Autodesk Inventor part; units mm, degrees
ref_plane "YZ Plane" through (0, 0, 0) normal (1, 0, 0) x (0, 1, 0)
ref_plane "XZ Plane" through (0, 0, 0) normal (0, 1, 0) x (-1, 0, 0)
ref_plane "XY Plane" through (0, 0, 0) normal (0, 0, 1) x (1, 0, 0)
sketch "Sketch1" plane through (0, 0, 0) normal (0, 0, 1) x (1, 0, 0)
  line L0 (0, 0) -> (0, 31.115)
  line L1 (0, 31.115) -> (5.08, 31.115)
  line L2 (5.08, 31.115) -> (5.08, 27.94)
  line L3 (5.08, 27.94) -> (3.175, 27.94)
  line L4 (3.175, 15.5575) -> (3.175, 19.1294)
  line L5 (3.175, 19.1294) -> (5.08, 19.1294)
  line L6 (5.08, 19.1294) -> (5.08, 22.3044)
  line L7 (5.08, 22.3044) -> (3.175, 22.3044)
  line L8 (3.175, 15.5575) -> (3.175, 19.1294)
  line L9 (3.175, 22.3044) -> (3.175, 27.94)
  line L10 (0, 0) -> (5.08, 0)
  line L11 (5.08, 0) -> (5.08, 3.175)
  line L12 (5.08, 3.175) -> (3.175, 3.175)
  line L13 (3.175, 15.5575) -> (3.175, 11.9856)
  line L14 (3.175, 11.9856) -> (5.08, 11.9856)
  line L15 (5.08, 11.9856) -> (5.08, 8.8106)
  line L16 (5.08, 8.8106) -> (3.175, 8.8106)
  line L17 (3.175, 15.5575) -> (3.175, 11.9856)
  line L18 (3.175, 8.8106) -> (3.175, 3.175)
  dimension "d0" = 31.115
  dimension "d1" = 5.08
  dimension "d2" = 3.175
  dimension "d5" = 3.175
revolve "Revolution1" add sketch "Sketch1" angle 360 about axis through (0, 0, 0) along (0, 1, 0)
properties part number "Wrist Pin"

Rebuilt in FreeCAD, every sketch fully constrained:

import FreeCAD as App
import Part
import Sketcher

V = App.Vector
Q = App.Units.Quantity

doc = App.newDocument("Part")
body = doc.addObject("PartDesign::Body", "Body")

# Sketch on XY plane
sketch1 = body.newObject("Sketcher::SketchObject", "Sketch")
sketch1.AttachmentSupport = (doc.getObject("XY_Plane"), [""])
sketch1.MapMode = "FlatFace"
sketch1.addGeometry([
    Part.LineSegment(V(0, 31.115, 0), V(0, 0, 0)),  # 0
    Part.LineSegment(V(0, 0, 0), V(5.08, 0, 0)),  # 1
    Part.LineSegment(V(5.08, 0, 0), V(5.08, 3.175, 0)),  # 2
    Part.LineSegment(V(5.08, 3.175, 0), V(3.175, 3.175, 0)),  # 3
    Part.LineSegment(V(3.175, 3.175, 0), V(3.175, 8.8106, 0)),  # 4
    Part.LineSegment(V(3.175, 8.8106, 0), V(5.08, 8.8106, 0)),  # 5
    Part.LineSegment(V(5.08, 8.8106, 0), V(5.08, 11.9856, 0)),  # 6
    Part.LineSegment(V(5.08, 11.9856, 0), V(3.175, 11.9856, 0)),  # 7
    Part.LineSegment(V(3.175, 11.9856, 0), V(3.175, 19.1294, 0)),  # 8
    Part.LineSegment(V(3.175, 19.1294, 0), V(5.08, 19.1294, 0)),  # 9
    Part.LineSegment(V(5.08, 19.1294, 0), V(5.08, 22.3044, 0)),  # 10
    Part.LineSegment(V(5.08, 22.3044, 0), V(3.175, 22.3044, 0)),  # 11
    Part.LineSegment(V(3.175, 22.3044, 0), V(3.175, 27.94, 0)),  # 12
    Part.LineSegment(V(3.175, 27.94, 0), V(5.08, 27.94, 0)),  # 13
    Part.LineSegment(V(5.08, 27.94, 0), V(5.08, 31.115, 0)),  # 14
    Part.LineSegment(V(5.08, 31.115, 0), V(0, 31.115, 0)),  # 15
], False)
sketch1.addConstraint([
    Sketcher.Constraint("Coincident", 0, 2, 1, 1),
    Sketcher.Constraint("Coincident", 1, 2, 2, 1),
    Sketcher.Constraint("Coincident", 2, 2, 3, 1),
    Sketcher.Constraint("Coincident", 3, 2, 4, 1),
    Sketcher.Constraint("Coincident", 4, 2, 5, 1),
    Sketcher.Constraint("Coincident", 5, 2, 6, 1),
    Sketcher.Constraint("Coincident", 6, 2, 7, 1),
    Sketcher.Constraint("Coincident", 7, 2, 8, 1),
    Sketcher.Constraint("Coincident", 8, 2, 9, 1),
    Sketcher.Constraint("Coincident", 9, 2, 10, 1),
    Sketcher.Constraint("Coincident", 10, 2, 11, 1),
    Sketcher.Constraint("Coincident", 11, 2, 12, 1),
    Sketcher.Constraint("Coincident", 12, 2, 13, 1),
    Sketcher.Constraint("Coincident", 13, 2, 14, 1),
    Sketcher.Constraint("Coincident", 14, 2, 15, 1),
    Sketcher.Constraint("Coincident", 15, 2, 0, 1),
    Sketcher.Constraint("Vertical", 0),
    Sketcher.Constraint("Horizontal", 1),
    Sketcher.Constraint("Vertical", 2),
    Sketcher.Constraint("Horizontal", 3),
    Sketcher.Constraint("Vertical", 4),
    Sketcher.Constraint("Horizontal", 5),
    Sketcher.Constraint("Vertical", 6),
    Sketcher.Constraint("Horizontal", 7),
    Sketcher.Constraint("Vertical", 8),
    Sketcher.Constraint("Horizontal", 9),
    Sketcher.Constraint("Vertical", 10),
    Sketcher.Constraint("Horizontal", 11),
    Sketcher.Constraint("Vertical", 12),
    Sketcher.Constraint("Horizontal", 13),
    Sketcher.Constraint("Vertical", 14),
    Sketcher.Constraint("Horizontal", 15),
    Sketcher.Constraint("Coincident", 0, 2, -1, 1),
    Sketcher.Constraint("Vertical", 2, 2, 5, 2),
    Sketcher.Constraint("Vertical", 4, 2, 7, 2),
    Sketcher.Constraint("Vertical", 6, 2, 9, 2),
    Sketcher.Constraint("Vertical", 8, 2, 11, 2),
    Sketcher.Constraint("Vertical", 10, 2, 13, 2),
    Sketcher.Constraint("Equal", 2, 6),
    Sketcher.Constraint("Equal", 6, 10),
    Sketcher.Constraint("Equal", 4, 12),
    Sketcher.Constraint("Equal", 10, 14),
    Sketcher.Constraint("DistanceX", 1, 1, 1, 2, Q("0.2 in")),
    Sketcher.Constraint("DistanceY", 0, 2, 0, 1, Q("1.225 in")),
    Sketcher.Constraint("DistanceY", 2, 1, 2, 2, Q("0.125 in")),
    Sketcher.Constraint("DistanceX", -1, 1, 3, 2, Q("0.125 in")),
    Sketcher.Constraint("DistanceY", 8, 1, 8, 2, Q("0.281252 in")),
])
revolution = body.newObject("PartDesign::Revolution", "Revolution")
revolution.Profile = sketch1
revolution.ReferenceAxis = (sketch1, ["V_Axis"])
revolution.Angle = 360

doc.recompute()
